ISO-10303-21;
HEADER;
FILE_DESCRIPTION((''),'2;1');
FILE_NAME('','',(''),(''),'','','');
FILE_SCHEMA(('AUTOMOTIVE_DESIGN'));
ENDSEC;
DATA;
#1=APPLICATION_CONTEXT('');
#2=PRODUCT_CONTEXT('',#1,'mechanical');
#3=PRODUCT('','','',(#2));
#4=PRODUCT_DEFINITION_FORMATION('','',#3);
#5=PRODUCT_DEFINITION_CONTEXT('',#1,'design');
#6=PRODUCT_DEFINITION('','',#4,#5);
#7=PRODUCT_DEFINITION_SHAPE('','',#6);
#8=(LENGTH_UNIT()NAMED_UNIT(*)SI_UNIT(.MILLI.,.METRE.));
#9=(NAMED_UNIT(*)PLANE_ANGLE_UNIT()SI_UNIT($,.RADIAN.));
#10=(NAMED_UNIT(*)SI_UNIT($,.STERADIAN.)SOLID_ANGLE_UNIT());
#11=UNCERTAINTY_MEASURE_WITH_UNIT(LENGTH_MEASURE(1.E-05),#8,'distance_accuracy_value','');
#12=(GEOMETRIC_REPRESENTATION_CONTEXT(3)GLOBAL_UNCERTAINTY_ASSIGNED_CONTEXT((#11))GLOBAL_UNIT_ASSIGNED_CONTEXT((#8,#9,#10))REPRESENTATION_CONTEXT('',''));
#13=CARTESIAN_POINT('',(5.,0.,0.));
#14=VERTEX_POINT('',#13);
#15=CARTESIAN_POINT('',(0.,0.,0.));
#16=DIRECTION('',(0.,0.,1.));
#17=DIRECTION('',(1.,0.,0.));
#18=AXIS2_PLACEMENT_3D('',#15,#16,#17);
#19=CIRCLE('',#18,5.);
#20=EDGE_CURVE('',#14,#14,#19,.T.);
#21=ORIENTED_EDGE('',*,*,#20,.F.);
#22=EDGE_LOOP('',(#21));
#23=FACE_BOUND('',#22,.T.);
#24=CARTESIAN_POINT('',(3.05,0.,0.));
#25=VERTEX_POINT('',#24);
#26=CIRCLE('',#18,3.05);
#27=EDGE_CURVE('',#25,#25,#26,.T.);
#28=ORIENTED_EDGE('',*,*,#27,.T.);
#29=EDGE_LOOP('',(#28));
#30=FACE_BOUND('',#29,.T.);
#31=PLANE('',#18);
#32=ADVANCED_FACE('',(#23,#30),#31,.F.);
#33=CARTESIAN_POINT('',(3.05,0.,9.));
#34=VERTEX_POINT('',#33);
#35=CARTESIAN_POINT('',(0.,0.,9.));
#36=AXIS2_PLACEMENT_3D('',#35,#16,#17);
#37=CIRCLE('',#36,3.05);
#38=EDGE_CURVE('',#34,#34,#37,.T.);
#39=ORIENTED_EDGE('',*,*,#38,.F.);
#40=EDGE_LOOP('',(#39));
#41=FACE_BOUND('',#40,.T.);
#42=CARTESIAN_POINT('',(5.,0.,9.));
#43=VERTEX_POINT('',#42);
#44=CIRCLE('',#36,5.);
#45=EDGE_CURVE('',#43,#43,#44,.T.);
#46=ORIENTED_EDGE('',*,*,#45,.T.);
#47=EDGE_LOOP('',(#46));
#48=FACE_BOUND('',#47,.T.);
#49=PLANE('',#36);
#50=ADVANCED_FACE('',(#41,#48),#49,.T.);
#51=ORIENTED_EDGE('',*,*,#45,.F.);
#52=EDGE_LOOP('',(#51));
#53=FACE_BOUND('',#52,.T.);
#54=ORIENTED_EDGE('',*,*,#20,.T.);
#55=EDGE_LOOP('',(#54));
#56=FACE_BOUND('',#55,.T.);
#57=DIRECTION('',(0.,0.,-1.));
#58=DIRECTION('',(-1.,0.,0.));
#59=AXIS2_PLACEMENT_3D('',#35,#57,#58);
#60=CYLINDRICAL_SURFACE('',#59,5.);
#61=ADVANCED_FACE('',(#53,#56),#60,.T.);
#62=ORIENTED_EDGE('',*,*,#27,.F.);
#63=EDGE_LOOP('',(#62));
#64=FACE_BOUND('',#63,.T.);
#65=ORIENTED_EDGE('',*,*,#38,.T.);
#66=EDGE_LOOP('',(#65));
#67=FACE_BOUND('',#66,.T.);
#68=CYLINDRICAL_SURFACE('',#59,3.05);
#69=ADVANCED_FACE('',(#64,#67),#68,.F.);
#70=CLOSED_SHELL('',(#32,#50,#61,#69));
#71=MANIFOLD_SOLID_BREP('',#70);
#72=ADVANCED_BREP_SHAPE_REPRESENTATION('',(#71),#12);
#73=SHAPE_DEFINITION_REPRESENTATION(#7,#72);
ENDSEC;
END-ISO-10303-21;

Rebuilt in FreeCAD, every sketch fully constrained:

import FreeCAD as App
import Part
import Sketcher

V = App.Vector
Q = App.Units.Quantity

doc = App.newDocument("Part")
params = doc.addObject("Spreadsheet::Sheet", "Params")
for row, (alias, value) in enumerate([
    ("sketch1_diameter", "10 mm"),
    ("sketch1_diameter2", "6.1 mm"),
    ("pad1_length", "9 mm"),
], start=1):
    params.set(f"A{row}", alias)
    params.set(f"B{row}", "=" + value)
    params.setAlias(f"B{row}", alias)

body = doc.addObject("PartDesign::Body", "Body")

sketch1 = body.newObject("Sketcher::SketchObject", "Sketch")
sketch1.AttachmentSupport = (doc.getObject("XY_Plane"), [""])
sketch1.MapMode = "FlatFace"
sketch1.addGeometry([
    Part.Circle(V(0, 0, 0), V(0, 0, 1), 5),
    Part.Circle(V(0, 0, 0), V(0, 0, 1), 3),
], False)
sketch1.addConstraint([
    Sketcher.Constraint("Coincident", 0, 3, -1, 1),
    Sketcher.Constraint("Coincident", 1, 3, -1, 1),
    Sketcher.Constraint("Diameter", 0, Q("10 mm")),
    Sketcher.Constraint("Diameter", 1, Q("6.1 mm")),
])
sketch1.setExpression("Constraints[2]", "Params.sketch1_diameter")
sketch1.setExpression("Constraints[3]", "Params.sketch1_diameter2")
pad1 = body.newObject("PartDesign::Pad", "Pad")
pad1.Profile = sketch1
pad1.setExpression("Length", "Params.pad1_length")

doc.recompute()
